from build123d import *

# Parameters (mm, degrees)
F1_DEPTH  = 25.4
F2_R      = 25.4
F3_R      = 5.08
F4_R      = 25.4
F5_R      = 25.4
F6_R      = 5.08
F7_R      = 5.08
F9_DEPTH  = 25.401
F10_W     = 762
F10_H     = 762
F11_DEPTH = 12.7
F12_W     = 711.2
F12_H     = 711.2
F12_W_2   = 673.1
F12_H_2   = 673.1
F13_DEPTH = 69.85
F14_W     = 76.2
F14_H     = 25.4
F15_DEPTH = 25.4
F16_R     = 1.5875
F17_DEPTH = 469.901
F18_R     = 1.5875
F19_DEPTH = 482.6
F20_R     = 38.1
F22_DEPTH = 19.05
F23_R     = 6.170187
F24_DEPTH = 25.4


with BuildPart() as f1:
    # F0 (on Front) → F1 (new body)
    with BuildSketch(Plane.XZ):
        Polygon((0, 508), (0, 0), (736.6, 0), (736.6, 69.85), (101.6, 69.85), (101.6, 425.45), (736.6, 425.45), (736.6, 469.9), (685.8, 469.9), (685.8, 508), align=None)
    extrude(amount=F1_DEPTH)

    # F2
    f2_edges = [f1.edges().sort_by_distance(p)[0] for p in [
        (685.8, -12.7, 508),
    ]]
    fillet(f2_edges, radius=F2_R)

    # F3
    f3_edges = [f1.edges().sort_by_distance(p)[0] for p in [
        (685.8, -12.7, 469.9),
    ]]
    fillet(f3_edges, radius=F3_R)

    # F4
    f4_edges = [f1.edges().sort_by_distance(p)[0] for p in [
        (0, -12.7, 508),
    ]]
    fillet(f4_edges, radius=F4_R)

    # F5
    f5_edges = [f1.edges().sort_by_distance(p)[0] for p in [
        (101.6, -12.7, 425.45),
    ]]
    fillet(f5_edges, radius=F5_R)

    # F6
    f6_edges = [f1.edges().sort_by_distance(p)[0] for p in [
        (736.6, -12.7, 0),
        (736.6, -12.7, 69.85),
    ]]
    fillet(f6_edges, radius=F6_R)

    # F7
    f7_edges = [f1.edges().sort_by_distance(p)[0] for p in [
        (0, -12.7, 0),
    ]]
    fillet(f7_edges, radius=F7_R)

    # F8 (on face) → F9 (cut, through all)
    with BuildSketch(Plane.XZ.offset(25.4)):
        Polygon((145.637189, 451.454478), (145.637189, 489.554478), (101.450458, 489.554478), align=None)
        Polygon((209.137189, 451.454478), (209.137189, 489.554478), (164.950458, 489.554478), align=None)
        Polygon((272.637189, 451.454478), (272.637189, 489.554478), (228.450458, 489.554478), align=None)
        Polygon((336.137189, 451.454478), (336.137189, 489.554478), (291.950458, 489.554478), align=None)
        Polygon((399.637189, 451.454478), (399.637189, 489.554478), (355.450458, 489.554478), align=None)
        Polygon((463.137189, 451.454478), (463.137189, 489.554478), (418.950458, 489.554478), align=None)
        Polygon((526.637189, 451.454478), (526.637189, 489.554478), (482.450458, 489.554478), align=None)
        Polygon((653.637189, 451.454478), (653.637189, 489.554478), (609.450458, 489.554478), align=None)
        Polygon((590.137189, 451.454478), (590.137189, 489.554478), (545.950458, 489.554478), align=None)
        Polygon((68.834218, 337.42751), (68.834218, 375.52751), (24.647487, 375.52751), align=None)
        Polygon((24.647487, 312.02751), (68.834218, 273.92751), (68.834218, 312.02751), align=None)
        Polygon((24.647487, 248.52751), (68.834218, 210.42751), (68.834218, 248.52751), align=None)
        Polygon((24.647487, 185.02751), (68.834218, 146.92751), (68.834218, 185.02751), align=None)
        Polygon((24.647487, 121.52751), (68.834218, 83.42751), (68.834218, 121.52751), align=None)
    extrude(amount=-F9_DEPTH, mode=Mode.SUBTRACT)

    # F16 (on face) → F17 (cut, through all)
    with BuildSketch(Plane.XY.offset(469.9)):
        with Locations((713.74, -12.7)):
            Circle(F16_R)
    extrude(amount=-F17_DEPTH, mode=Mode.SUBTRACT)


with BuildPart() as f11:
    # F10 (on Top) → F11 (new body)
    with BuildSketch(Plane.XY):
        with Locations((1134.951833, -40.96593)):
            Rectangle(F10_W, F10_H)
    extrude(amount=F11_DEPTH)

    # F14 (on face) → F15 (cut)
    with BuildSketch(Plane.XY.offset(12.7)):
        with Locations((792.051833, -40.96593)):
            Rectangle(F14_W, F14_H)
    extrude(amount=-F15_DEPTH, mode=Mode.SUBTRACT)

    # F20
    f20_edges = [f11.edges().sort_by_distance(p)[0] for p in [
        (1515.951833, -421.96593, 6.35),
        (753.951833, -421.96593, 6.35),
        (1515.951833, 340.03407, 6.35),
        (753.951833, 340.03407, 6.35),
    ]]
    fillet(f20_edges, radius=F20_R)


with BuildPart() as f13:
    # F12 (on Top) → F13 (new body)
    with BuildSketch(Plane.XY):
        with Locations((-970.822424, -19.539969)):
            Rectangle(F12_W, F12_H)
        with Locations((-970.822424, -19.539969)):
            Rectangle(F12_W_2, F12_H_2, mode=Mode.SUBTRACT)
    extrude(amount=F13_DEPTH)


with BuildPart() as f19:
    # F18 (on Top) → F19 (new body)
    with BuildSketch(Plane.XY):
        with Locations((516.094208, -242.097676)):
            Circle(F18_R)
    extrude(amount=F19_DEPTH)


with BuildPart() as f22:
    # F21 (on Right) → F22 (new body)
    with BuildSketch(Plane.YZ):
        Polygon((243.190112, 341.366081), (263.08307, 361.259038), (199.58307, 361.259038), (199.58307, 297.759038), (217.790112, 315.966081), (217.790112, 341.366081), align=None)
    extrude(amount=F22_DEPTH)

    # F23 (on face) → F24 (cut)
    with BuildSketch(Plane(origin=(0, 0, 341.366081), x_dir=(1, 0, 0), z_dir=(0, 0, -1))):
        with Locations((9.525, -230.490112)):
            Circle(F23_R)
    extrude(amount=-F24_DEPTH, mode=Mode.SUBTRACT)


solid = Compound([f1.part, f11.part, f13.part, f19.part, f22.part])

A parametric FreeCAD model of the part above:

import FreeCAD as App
import Part
import Sketcher
from FreeCAD import Vector
Q = App.Units.Quantity


def edges_at(feature, points):
    """Names of the edges that pass closest to the given points."""
    edges = feature.Shape.Edges
    near = lambda p: min(range(len(edges)), key=lambda i: edges[i].distToShape(Part.Vertex(*p))[0])
    return sorted({f"Edge{near(p) + 1}" for p in points})


def add_polygon(sketch, points):
    """Adds a closed chain of lines whose ends are joined by coincident constraints."""
    first, n = sketch.GeometryCount, len(points)
    for a, b in zip(points, points[1:] + points[:1]):
        sketch.addGeometry(Part.LineSegment(App.Vector(*a, 0), App.Vector(*b, 0)), False)
    for i in range(n):
        sketch.addConstraint(Sketcher.Constraint("Coincident", first + i, 2, first + (i + 1) % n, 1))

doc = App.newDocument("Part")
params = doc.addObject("Spreadsheet::Sheet", "Params")
for row, (alias, value) in enumerate([
    ("sketch1_width", "29 in"),
    ("sketch1_width2", "25 in"),
    ("sketch1_width3", "2 in"),
    ("sketch1_height", "20 in"),
    ("sketch1_height2", "14 in"),
    ("pad1_length", "1 in"),
    ("fillet_radius", "1 in"),
    ("fillet2_radius", "0.2 in"),
    ("fillet3_radius", "1 in"),
    ("fillet4_radius", "1 in"),
    ("fillet5_radius", "0.2 in"),
    ("fillet6_radius", "0.2 in"),
    ("sketch2_height", "1.5 in"),
    ("sketch3_diameter", "0.125 in"),
    ("sketch4_width", "30 in"),
    ("pad2_length", "0.5 in"),
    ("sketch5_width", "3 in"),
    ("sketch5_height", "1 in"),
    ("pocket3_length", "1 in"),
    ("fillet7_radius", "1.5 in"),
    ("sketch6_width", "28 in"),
    ("sketch6_width2", "26.5 in"),
    ("pad3_length", "2.75 in"),
    ("sketch7_diameter", "0.125 in"),
    ("pad4_length", "19 in"),
    ("sketch8_width", "1 in"),
    ("sketch8_width2", "2.5 in"),
    ("pad5_length", "0.75 in"),
    ("pocket4_length", "1 in"),
], start=1):
    params.set(f"A{row}", alias)
    params.set(f"B{row}", "=" + value)
    params.setAlias(f"B{row}", alias)

body = doc.addObject("PartDesign::Body", "Body")

# Sketch on XZ plane
sketch1 = body.newObject("Sketcher::SketchObject", "Sketch")
sketch1.AttachmentSupport = (doc.getObject("XZ_Plane"), [""])
sketch1.MapMode = "FlatFace"
add_polygon(sketch1, [(0, 508), (0, 0), (737, 0), (737, 70), (102, 70), (102, 425), (737, 425), (737, 470), (686, 470), (686, 508)])  # lines 0-9
sketch1.addConstraint([
    Sketcher.Constraint("Vertical", 0),
    Sketcher.Constraint("Horizontal", 1),
    Sketcher.Constraint("Vertical", 2),
    Sketcher.Constraint("Horizontal", 3),
    Sketcher.Constraint("Vertical", 4),
    Sketcher.Constraint("Horizontal", 5),
    Sketcher.Constraint("Vertical", 6),
    Sketcher.Constraint("Horizontal", 7),
    Sketcher.Constraint("Vertical", 8),
    Sketcher.Constraint("Horizontal", 9),
    Sketcher.Constraint("Coincident", 0, 2, -1, 1),
    Sketcher.Constraint("Vertical", 2, 2, 5, 2),
    Sketcher.Constraint("DistanceX", 1, 1, 1, 2, Q("29 in")),
    Sketcher.Constraint("DistanceX", 3, 2, 3, 1, Q("25 in")),
    Sketcher.Constraint("DistanceX", 7, 2, 7, 1, Q("2 in")),
    Sketcher.Constraint("DistanceY", 0, 2, 0, 1, Q("20 in")),
    Sketcher.Constraint("DistanceY", 4, 1, 4, 2, Q("14 in")),
    Sketcher.Constraint("DistanceY", 8, 1, 8, 2, Q("1.5 in")),
    Sketcher.Constraint("DistanceY", 2, 1, 2, 2, Q("2.75 in")),
])
sketch1.setExpression("Constraints[22]", "Params.sketch1_width")
sketch1.setExpression("Constraints[23]", "Params.sketch1_width2")
sketch1.setExpression("Constraints[24]", "Params.sketch1_width3")
sketch1.setExpression("Constraints[25]", "Params.sketch1_height")
sketch1.setExpression("Constraints[26]", "Params.sketch1_height2")
pad1 = body.newObject("PartDesign::Pad", "Pad")
pad1.Profile = sketch1
pad1.setExpression("Length", "Params.pad1_length")
doc.recompute()

fillet = body.newObject("PartDesign::Fillet", "Fillet")
fillet.Base = (pad1, edges_at(pad1, [(685.8, -12.7, 508)]))
fillet.setExpression("Radius", "Params.fillet_radius")
doc.recompute()

fillet2 = body.newObject("PartDesign::Fillet", "Fillet001")
fillet2.Base = (fillet, edges_at(fillet, [(685.8, -12.7, 469.9)]))
fillet2.setExpression("Radius", "Params.fillet2_radius")
doc.recompute()

fillet3 = body.newObject("PartDesign::Fillet", "Fillet002")
fillet3.Base = (fillet2, edges_at(fillet2, [(0, -12.7, 508)]))
fillet3.setExpression("Radius", "Params.fillet3_radius")
doc.recompute()

fillet4 = body.newObject("PartDesign::Fillet", "Fillet003")
fillet4.Base = (fillet3, edges_at(fillet3, [(101.6, -12.7, 425.45)]))
fillet4.setExpression("Radius", "Params.fillet4_radius")
doc.recompute()

fillet5 = body.newObject("PartDesign::Fillet", "Fillet004")
fillet5.Base = (fillet4, edges_at(fillet4, [(736.6, -12.7, 0), (736.6, -12.7, 69.85)]))
fillet5.setExpression("Radius", "Params.fillet5_radius")
doc.recompute()

fillet6 = body.newObject("PartDesign::Fillet", "Fillet005")
fillet6.Base = (fillet5, edges_at(fillet5, [(0, -12.7, 0)]))
fillet6.setExpression("Radius", "Params.fillet6_radius")

# Sketch on XZ plane
sketch2 = body.newObject("Sketcher::SketchObject", "Sketch001")
sketch2.AttachmentSupport = (doc.getObject("XZ_Plane"), [""])
sketch2.MapMode = "FlatFace"
sketch2.AttachmentOffset = App.Placement(Vector(0, 0, 1 * 25.4), App.Rotation())
add_polygon(sketch2, [(146, 451), (146, 490), (101, 490)])  # lines 0-2
add_polygon(sketch2, [(209, 451), (209, 490), (165, 490)])  # lines 3-5
add_polygon(sketch2, [(273, 451), (273, 490), (228, 490)])  # lines 6-8
add_polygon(sketch2, [(336, 451), (336, 490), (292, 490)])  # lines 9-11
add_polygon(sketch2, [(400, 451), (400, 490), (355, 490)])  # lines 12-14
add_polygon(sketch2, [(463, 451), (463, 490), (419, 490)])  # lines 15-17
add_polygon(sketch2, [(527, 451), (527, 490), (482, 490)])  # lines 18-20
add_polygon(sketch2, [(654, 451), (654, 490), (609, 490)])  # lines 21-23
add_polygon(sketch2, [(590, 451), (590, 490), (546, 490)])  # lines 24-26
add_polygon(sketch2, [(69, 337), (69, 376), (25, 376)])  # lines 27-29
add_polygon(sketch2, [(25, 312), (69, 274), (69, 312)])  # lines 30-32
add_polygon(sketch2, [(25, 249), (69, 210), (69, 249)])  # lines 33-35
add_polygon(sketch2, [(25, 185), (69, 147), (69, 185)])  # lines 36-38
add_polygon(sketch2, [(25, 122), (69, 83), (69, 122)])  # lines 39-41
sketch2.addConstraint([
    Sketcher.Constraint("Vertical", 0),
    Sketcher.Constraint("Horizontal", 1),
    Sketcher.Constraint("Vertical", 3),
    Sketcher.Constraint("Horizontal", 4),
    Sketcher.Constraint("Vertical", 6),
    Sketcher.Constraint("Horizontal", 7),
    Sketcher.Constraint("Vertical", 9),
    Sketcher.Constraint("Horizontal", 10),
    Sketcher.Constraint("Vertical", 12),
    Sketcher.Constraint("Horizontal", 13),
    Sketcher.Constraint("Vertical", 15),
    Sketcher.Constraint("Horizontal", 16),
    Sketcher.Constraint("Vertical", 18),
    Sketcher.Constraint("Horizontal", 19),
    Sketcher.Constraint("Vertical", 21),
    Sketcher.Constraint("Horizontal", 22),
    Sketcher.Constraint("Vertical", 24),
    Sketcher.Constraint("Horizontal", 25),
    Sketcher.Constraint("Vertical", 27),
    Sketcher.Constraint("Horizontal", 28),
    Sketcher.Constraint("Vertical", 31),
    Sketcher.Constraint("Horizontal", 32),
    Sketcher.Constraint("Vertical", 34),
    Sketcher.Constraint("Horizontal", 35),
    Sketcher.Constraint("Vertical", 37),
    Sketcher.Constraint("Horizontal", 38),
    Sketcher.Constraint("Vertical", 40),
    Sketcher.Constraint("Horizontal", 41),
    Sketcher.Constraint("Parallel", 2, 5),
    Sketcher.Constraint("Parallel", 5, 8),
    Sketcher.Constraint("Parallel", 8, 11),
    Sketcher.Constraint("Parallel", 11, 14),
    Sketcher.Constraint("Parallel", 14, 17),
    Sketcher.Constraint("Parallel", 17, 20),
    Sketcher.Constraint("Parallel", 20, 23),
    Sketcher.Constraint("Parallel", 23, 26),
    Sketcher.Constraint("Parallel", 26, 29),
    Sketcher.Constraint("Parallel", 29, 30),
    Sketcher.Constraint("Parallel", 30, 33),
    Sketcher.Constraint("Parallel", 33, 36),
    Sketcher.Constraint("Parallel", 36, 39),
    Sketcher.Constraint("Horizontal", 1, 2, 3, 2),
    Sketcher.Constraint("Horizontal", 2, 2, 5, 2),
    Sketcher.Constraint("Horizontal", 4, 2, 6, 2),
    Sketcher.Constraint("Horizontal", 5, 2, 8, 2),
    Sketcher.Constraint("Horizontal", 7, 2, 9, 2),
    Sketcher.Constraint("Horizontal", 8, 2, 11, 2),
    Sketcher.Constraint("Horizontal", 10, 2, 12, 2),
    Sketcher.Constraint("Horizontal", 11, 2, 14, 2),
    Sketcher.Constraint("Horizontal", 13, 2, 15, 2),
    Sketcher.Constraint("Horizontal", 14, 2, 17, 2),
    Sketcher.Constraint("Horizontal", 16, 2, 18, 2),
    Sketcher.Constraint("Horizontal", 17, 2, 20, 2),
    Sketcher.Constraint("Horizontal", 19, 2, 21, 2),
    Sketcher.Constraint("Horizontal", 20, 2, 23, 2),
    Sketcher.Constraint("Horizontal", 22, 2, 24, 2),
    Sketcher.Constraint("Horizontal", 23, 2, 26, 2),
    Sketcher.Constraint("Vertical", 29, 2, 30, 2),
    Sketcher.Constraint("Vertical", 28, 2, 32, 2),
    Sketcher.Constraint("Vertical", 31, 2, 33, 2),
    Sketcher.Constraint("Vertical", 32, 2, 35, 2),
    Sketcher.Constraint("Vertical", 34, 2, 36, 2),
    Sketcher.Constraint("Vertical", 35, 2, 38, 2),
    Sketcher.Constraint("Vertical", 37, 2, 39, 2),
    Sketcher.Constraint("Vertical", 38, 2, 41, 2),
    Sketcher.Constraint("Equal", 25, 28),
    Sketcher.Constraint("DistanceY", 0, 1, 0, 2, Q("1.5 in")),
    Sketcher.Constraint("DistanceX", 0, 2, 6, 2, Q("5 in")),
    Sketcher.Constraint("DistanceX", 3, 2, 9, 2, Q("5 in")),
    Sketcher.Constraint("DistanceX", 6, 2, 12, 2, Q("5 in")),
    Sketcher.Constraint("DistanceX", 9, 2, 15, 2, Q("5 in")),
    Sketcher.Constraint("DistanceX", 12, 2, 18, 2, Q("5 in")),
    Sketcher.Constraint("DistanceX", 18, 2, 21, 2, Q("5 in")),
    Sketcher.Constraint("DistanceY", 30, 2, 27, 2, Q("4 in")),
    Sketcher.Constraint("DistanceY", 33, 2, 31, 2, Q("4 in")),
    Sketcher.Constraint("DistanceY", 36, 2, 34, 2, Q("4 in")),
    Sketcher.Constraint("DistanceY", 39, 2, 37, 2, Q("4 in")),
    Sketcher.Constraint("DistanceX", 0, 2, 3, 2, Q("2.5 in")),
    Sketcher.Constraint("DistanceX", 18, 2, 24, 2, Q("2.5 in")),
    Sketcher.Constraint("DistanceX", 1, 2, 1, 1, Q("44.186731 mm")),
    Sketcher.Constraint("DistanceX", -1, 1, 0, 2, Q("145.637189 mm")),
    Sketcher.Constraint("DistanceY", -1, 1, 0, 2, Q("489.554478 mm")),
    Sketcher.Constraint("DistanceX", -1, 1, 27, 2, Q("68.834218 mm")),
    Sketcher.Constraint("DistanceY", -1, 1, 27, 2, Q("375.52751 mm")),
])
sketch2.setExpression("Constraints[108]", "Params.sketch2_height")
pocket1 = body.newObject("PartDesign::Pocket", "Pocket")
pocket1.Profile = sketch2
pocket1.Type = "ThroughAll"

# Sketch on XY plane
sketch3 = body.newObject("Sketcher::SketchObject", "Sketch002")
sketch3.AttachmentSupport = (doc.getObject("XY_Plane"), [""])
sketch3.MapMode = "FlatFace"
sketch3.AttachmentOffset = App.Placement(Vector(0, 0, 18.5 * 25.4), App.Rotation())
sketch3.addGeometry(Part.Circle(Vector(713.7, -12.7, 0), Vector(0, 0, 1), 1.6), False)
sketch3.addConstraint([
    Sketcher.Constraint("Diameter", 0, Q("0.125 in")),
    Sketcher.Constraint("DistanceX", -1, 1, 0, 3, Q("28.1 in")),
    Sketcher.Constraint("DistanceY", 0, 3, -1, 1, Q("0.5 in")),
])
sketch3.setExpression("Constraints[0]", "Params.sketch3_diameter")
pocket2 = body.newObject("PartDesign::Pocket", "Pocket001")
pocket2.Profile = sketch3
pocket2.Type = "ThroughAll"
body2 = doc.addObject("PartDesign::Body", "Body001")

# Sketch on XY plane
sketch4 = body2.newObject("Sketcher::SketchObject", "Sketch003")
sketch4.AttachmentSupport = (doc.getObject("XY_Plane001"), [""])
sketch4.MapMode = "FlatFace"
add_polygon(sketch4, [(754, 340), (754, -422), (1516, -422), (1516, 340)])  # lines 0-3
sketch4.addConstraint([
    Sketcher.Constraint("Vertical", 0),
    Sketcher.Constraint("Horizontal", 1),
    Sketcher.Constraint("Vertical", 2),
    Sketcher.Constraint("Horizontal", 3),
    Sketcher.Constraint("Equal", 3, 0),
    Sketcher.Constraint("DistanceX", 1, 1, 1, 2, Q("30 in")),
    Sketcher.Constraint("DistanceY", 0, 2, -1, 1, Q("421.96593 mm")),
    Sketcher.Constraint("DistanceX", -1, 1, 0, 2, Q("753.951833 mm")),
])
sketch4.setExpression("Constraints[9]", "Params.sketch4_width")
pad2 = body2.newObject("PartDesign::Pad", "Pad001")
pad2.Profile = sketch4
pad2.setExpression("Length", "Params.pad2_length")

# Sketch on XY plane
sketch5 = body2.newObject("Sketcher::SketchObject", "Sketch004")
sketch5.AttachmentSupport = (doc.getObject("XY_Plane001"), [""])
sketch5.MapMode = "FlatFace"
sketch5.AttachmentOffset = App.Placement(Vector(0, 0, 0.5 * 25.4), App.Rotation())
add_polygon(sketch5, [(754, -28), (754, -54), (830, -54), (830, -28)])  # lines 0-3
sketch5.addConstraint([
    Sketcher.Constraint("Vertical", 0),
    Sketcher.Constraint("Horizontal", 1),
    Sketcher.Constraint("Vertical", 2),
    Sketcher.Constraint("Horizontal", 3),
    Sketcher.Constraint("DistanceX", 1, 1, 1, 2, Q("3 in")),
    Sketcher.Constraint("DistanceY", 0, 2, 0, 1, Q("1 in")),
    Sketcher.Constraint("DistanceY", 0, 2, -1, 1, Q("53.66593 mm")),
    Sketcher.Constraint("DistanceX", -1, 1, 0, 2, Q("753.951833 mm")),
])
sketch5.setExpression("Constraints[8]", "Params.sketch5_width")
sketch5.setExpression("Constraints[9]", "Params.sketch5_height")
pocket3 = body2.newObject("PartDesign::Pocket", "Pocket002")
pocket3.Profile = sketch5
pocket3.setExpression("Length", "Params.pocket3_length")
doc.recompute()

fillet7 = body2.newObject("PartDesign::Fillet", "Fillet006")
fillet7.Base = (pocket3, edges_at(pocket3, [
    (1515.952, -421.966, 6.35),
    (753.952, -421.966, 6.35),
    (1515.952, 340.034, 6.35),
    (753.952, 340.034, 6.35),
]))
fillet7.setExpression("Radius", "Params.fillet7_radius")
body3 = doc.addObject("PartDesign::Body", "Body002")

# Sketch on XY plane
sketch6 = body3.newObject("Sketcher::SketchObject", "Sketch005")
sketch6.AttachmentSupport = (doc.getObject("XY_Plane002"), [""])
sketch6.MapMode = "FlatFace"
add_polygon(sketch6, [(-1326, 336), (-1326, -375), (-615, -375), (-615, 336)])  # lines 0-3
add_polygon(sketch6, [(-634, -356), (-1307, -356), (-1307, 317), (-634, 317)])  # lines 4-7
sketch6.addConstraint([
    Sketcher.Constraint("Vertical", 0),
    Sketcher.Constraint("Horizontal", 1),
    Sketcher.Constraint("Vertical", 2),
    Sketcher.Constraint("Horizontal", 3),
    Sketcher.Constraint("Horizontal", 4),
    Sketcher.Constraint("Vertical", 5),
    Sketcher.Constraint("Horizontal", 6),
    Sketcher.Constraint("Vertical", 7),
    Sketcher.Constraint("Equal", 3, 0),
    Sketcher.Constraint("Equal", 6, 5),
    Sketcher.Constraint("DistanceX", 1, 1, 1, 2, Q("28 in")),
    Sketcher.Constraint("DistanceX", 4, 2, 4, 1, Q("26.5 in")),
    Sketcher.Constraint("DistanceX", 0, 2, 4, 2, Q("0.75 in")),
    Sketcher.Constraint("DistanceY", 0, 2, 4, 2, Q("0.75 in")),
    Sketcher.Constraint("DistanceY", 0, 2, -1, 1, Q("375.139969 mm")),
    Sketcher.Constraint("DistanceX", 0, 2, -1, 1, Q("1326.422424 mm")),
])
sketch6.setExpression("Constraints[18]", "Params.sketch6_width")
sketch6.setExpression("Constraints[19]", "Params.sketch6_width2")
pad3 = body3.newObject("PartDesign::Pad", "Pad002")
pad3.Profile = sketch6
pad3.setExpression("Length", "Params.pad3_length")
body4 = doc.addObject("PartDesign::Body", "Body003")

# Sketch on XY plane
sketch7 = body4.newObject("Sketcher::SketchObject", "Sketch006")
sketch7.AttachmentSupport = (doc.getObject("XY_Plane003"), [""])
sketch7.MapMode = "FlatFace"
sketch7.addGeometry(Part.Circle(Vector(516.1, -242.1, 0), Vector(0, 0, 1), 1.6), False)
sketch7.addConstraint([
    Sketcher.Constraint("Diameter", 0, Q("0.125 in")),
    Sketcher.Constraint("DistanceX", -1, 1, 0, 3, Q("516.094208 mm")),
    Sketcher.Constraint("DistanceY", 0, 3, -1, 1, Q("242.097676 mm")),
])
sketch7.setExpression("Constraints[0]", "Params.sketch7_diameter")
pad4 = body4.newObject("PartDesign::Pad", "Pad003")
pad4.Profile = sketch7
pad4.setExpression("Length", "Params.pad4_length")
body5 = doc.addObject("PartDesign::Body", "Body004")

# Sketch on YZ plane
sketch8 = body5.newObject("Sketcher::SketchObject", "Sketch007")
sketch8.AttachmentSupport = (doc.getObject("YZ_Plane004"), [""])
sketch8.MapMode = "FlatFace"
add_polygon(sketch8, [(243, 341), (263, 361), (200, 361), (200, 298), (218, 316), (218, 341)])  # lines 0-5
sketch8.addConstraint([
    Sketcher.Constraint("Horizontal", 1),
    Sketcher.Constraint("Vertical", 2),
    Sketcher.Constraint("Vertical", 4),
    Sketcher.Constraint("Horizontal", 5),
    Sketcher.Constraint("Parallel", 0, 3),
    Sketcher.Constraint("Equal", 1, 2),
    Sketcher.Constraint("Equal", 5, 4),
    Sketcher.Constraint("DistanceX", 5, 1, 5, 2, Q("1 in")),
    Sketcher.Constraint("DistanceX", 1, 2, 1, 1, Q("2.5 in")),
    Sketcher.Constraint("Distance", 0, Q("28.13289 mm")),
    Sketcher.Constraint("DistanceX", -1, 1, 0, 2, Q("263.08307 mm")),
    Sketcher.Constraint("DistanceY", -1, 1, 3, 2, Q("315.966081 mm")),
])
sketch8.setExpression("Constraints[13]", "Params.sketch8_width")
sketch8.setExpression("Constraints[14]", "Params.sketch8_width2")
pad5 = body5.newObject("PartDesign::Pad", "Pad004")
pad5.Profile = sketch8
pad5.setExpression("Length", "Params.pad5_length")

# Sketch on XY plane
sketch9 = body5.newObject("Sketcher::SketchObject", "Sketch008")
sketch9.AttachmentSupport = (doc.getObject("XY_Plane004"), [""])
sketch9.MapMode = "FlatFace"
sketch9.AttachmentOffset = App.Placement(Vector(0, 0, 341.366081), App.Rotation())
sketch9.addGeometry(Part.Circle(Vector(10, 230, 0), Vector(0, 0, 1), 6), False)
sketch9.addConstraint([
    Sketcher.Constraint("DistanceX", -1, 1, 0, 3, Q("0.375 in")),
    Sketcher.Constraint("Diameter", 0, Q("12.340374 mm")),
    Sketcher.Constraint("DistanceY", -1, 1, 0, 3, Q("230.490112 mm")),
])
pocket4 = body5.newObject("PartDesign::Pocket", "Pocket003")
pocket4.Profile = sketch9
pocket4.setExpression("Length", "Params.pocket4_length")
pocket4.Reversed = True

doc.recompute()
